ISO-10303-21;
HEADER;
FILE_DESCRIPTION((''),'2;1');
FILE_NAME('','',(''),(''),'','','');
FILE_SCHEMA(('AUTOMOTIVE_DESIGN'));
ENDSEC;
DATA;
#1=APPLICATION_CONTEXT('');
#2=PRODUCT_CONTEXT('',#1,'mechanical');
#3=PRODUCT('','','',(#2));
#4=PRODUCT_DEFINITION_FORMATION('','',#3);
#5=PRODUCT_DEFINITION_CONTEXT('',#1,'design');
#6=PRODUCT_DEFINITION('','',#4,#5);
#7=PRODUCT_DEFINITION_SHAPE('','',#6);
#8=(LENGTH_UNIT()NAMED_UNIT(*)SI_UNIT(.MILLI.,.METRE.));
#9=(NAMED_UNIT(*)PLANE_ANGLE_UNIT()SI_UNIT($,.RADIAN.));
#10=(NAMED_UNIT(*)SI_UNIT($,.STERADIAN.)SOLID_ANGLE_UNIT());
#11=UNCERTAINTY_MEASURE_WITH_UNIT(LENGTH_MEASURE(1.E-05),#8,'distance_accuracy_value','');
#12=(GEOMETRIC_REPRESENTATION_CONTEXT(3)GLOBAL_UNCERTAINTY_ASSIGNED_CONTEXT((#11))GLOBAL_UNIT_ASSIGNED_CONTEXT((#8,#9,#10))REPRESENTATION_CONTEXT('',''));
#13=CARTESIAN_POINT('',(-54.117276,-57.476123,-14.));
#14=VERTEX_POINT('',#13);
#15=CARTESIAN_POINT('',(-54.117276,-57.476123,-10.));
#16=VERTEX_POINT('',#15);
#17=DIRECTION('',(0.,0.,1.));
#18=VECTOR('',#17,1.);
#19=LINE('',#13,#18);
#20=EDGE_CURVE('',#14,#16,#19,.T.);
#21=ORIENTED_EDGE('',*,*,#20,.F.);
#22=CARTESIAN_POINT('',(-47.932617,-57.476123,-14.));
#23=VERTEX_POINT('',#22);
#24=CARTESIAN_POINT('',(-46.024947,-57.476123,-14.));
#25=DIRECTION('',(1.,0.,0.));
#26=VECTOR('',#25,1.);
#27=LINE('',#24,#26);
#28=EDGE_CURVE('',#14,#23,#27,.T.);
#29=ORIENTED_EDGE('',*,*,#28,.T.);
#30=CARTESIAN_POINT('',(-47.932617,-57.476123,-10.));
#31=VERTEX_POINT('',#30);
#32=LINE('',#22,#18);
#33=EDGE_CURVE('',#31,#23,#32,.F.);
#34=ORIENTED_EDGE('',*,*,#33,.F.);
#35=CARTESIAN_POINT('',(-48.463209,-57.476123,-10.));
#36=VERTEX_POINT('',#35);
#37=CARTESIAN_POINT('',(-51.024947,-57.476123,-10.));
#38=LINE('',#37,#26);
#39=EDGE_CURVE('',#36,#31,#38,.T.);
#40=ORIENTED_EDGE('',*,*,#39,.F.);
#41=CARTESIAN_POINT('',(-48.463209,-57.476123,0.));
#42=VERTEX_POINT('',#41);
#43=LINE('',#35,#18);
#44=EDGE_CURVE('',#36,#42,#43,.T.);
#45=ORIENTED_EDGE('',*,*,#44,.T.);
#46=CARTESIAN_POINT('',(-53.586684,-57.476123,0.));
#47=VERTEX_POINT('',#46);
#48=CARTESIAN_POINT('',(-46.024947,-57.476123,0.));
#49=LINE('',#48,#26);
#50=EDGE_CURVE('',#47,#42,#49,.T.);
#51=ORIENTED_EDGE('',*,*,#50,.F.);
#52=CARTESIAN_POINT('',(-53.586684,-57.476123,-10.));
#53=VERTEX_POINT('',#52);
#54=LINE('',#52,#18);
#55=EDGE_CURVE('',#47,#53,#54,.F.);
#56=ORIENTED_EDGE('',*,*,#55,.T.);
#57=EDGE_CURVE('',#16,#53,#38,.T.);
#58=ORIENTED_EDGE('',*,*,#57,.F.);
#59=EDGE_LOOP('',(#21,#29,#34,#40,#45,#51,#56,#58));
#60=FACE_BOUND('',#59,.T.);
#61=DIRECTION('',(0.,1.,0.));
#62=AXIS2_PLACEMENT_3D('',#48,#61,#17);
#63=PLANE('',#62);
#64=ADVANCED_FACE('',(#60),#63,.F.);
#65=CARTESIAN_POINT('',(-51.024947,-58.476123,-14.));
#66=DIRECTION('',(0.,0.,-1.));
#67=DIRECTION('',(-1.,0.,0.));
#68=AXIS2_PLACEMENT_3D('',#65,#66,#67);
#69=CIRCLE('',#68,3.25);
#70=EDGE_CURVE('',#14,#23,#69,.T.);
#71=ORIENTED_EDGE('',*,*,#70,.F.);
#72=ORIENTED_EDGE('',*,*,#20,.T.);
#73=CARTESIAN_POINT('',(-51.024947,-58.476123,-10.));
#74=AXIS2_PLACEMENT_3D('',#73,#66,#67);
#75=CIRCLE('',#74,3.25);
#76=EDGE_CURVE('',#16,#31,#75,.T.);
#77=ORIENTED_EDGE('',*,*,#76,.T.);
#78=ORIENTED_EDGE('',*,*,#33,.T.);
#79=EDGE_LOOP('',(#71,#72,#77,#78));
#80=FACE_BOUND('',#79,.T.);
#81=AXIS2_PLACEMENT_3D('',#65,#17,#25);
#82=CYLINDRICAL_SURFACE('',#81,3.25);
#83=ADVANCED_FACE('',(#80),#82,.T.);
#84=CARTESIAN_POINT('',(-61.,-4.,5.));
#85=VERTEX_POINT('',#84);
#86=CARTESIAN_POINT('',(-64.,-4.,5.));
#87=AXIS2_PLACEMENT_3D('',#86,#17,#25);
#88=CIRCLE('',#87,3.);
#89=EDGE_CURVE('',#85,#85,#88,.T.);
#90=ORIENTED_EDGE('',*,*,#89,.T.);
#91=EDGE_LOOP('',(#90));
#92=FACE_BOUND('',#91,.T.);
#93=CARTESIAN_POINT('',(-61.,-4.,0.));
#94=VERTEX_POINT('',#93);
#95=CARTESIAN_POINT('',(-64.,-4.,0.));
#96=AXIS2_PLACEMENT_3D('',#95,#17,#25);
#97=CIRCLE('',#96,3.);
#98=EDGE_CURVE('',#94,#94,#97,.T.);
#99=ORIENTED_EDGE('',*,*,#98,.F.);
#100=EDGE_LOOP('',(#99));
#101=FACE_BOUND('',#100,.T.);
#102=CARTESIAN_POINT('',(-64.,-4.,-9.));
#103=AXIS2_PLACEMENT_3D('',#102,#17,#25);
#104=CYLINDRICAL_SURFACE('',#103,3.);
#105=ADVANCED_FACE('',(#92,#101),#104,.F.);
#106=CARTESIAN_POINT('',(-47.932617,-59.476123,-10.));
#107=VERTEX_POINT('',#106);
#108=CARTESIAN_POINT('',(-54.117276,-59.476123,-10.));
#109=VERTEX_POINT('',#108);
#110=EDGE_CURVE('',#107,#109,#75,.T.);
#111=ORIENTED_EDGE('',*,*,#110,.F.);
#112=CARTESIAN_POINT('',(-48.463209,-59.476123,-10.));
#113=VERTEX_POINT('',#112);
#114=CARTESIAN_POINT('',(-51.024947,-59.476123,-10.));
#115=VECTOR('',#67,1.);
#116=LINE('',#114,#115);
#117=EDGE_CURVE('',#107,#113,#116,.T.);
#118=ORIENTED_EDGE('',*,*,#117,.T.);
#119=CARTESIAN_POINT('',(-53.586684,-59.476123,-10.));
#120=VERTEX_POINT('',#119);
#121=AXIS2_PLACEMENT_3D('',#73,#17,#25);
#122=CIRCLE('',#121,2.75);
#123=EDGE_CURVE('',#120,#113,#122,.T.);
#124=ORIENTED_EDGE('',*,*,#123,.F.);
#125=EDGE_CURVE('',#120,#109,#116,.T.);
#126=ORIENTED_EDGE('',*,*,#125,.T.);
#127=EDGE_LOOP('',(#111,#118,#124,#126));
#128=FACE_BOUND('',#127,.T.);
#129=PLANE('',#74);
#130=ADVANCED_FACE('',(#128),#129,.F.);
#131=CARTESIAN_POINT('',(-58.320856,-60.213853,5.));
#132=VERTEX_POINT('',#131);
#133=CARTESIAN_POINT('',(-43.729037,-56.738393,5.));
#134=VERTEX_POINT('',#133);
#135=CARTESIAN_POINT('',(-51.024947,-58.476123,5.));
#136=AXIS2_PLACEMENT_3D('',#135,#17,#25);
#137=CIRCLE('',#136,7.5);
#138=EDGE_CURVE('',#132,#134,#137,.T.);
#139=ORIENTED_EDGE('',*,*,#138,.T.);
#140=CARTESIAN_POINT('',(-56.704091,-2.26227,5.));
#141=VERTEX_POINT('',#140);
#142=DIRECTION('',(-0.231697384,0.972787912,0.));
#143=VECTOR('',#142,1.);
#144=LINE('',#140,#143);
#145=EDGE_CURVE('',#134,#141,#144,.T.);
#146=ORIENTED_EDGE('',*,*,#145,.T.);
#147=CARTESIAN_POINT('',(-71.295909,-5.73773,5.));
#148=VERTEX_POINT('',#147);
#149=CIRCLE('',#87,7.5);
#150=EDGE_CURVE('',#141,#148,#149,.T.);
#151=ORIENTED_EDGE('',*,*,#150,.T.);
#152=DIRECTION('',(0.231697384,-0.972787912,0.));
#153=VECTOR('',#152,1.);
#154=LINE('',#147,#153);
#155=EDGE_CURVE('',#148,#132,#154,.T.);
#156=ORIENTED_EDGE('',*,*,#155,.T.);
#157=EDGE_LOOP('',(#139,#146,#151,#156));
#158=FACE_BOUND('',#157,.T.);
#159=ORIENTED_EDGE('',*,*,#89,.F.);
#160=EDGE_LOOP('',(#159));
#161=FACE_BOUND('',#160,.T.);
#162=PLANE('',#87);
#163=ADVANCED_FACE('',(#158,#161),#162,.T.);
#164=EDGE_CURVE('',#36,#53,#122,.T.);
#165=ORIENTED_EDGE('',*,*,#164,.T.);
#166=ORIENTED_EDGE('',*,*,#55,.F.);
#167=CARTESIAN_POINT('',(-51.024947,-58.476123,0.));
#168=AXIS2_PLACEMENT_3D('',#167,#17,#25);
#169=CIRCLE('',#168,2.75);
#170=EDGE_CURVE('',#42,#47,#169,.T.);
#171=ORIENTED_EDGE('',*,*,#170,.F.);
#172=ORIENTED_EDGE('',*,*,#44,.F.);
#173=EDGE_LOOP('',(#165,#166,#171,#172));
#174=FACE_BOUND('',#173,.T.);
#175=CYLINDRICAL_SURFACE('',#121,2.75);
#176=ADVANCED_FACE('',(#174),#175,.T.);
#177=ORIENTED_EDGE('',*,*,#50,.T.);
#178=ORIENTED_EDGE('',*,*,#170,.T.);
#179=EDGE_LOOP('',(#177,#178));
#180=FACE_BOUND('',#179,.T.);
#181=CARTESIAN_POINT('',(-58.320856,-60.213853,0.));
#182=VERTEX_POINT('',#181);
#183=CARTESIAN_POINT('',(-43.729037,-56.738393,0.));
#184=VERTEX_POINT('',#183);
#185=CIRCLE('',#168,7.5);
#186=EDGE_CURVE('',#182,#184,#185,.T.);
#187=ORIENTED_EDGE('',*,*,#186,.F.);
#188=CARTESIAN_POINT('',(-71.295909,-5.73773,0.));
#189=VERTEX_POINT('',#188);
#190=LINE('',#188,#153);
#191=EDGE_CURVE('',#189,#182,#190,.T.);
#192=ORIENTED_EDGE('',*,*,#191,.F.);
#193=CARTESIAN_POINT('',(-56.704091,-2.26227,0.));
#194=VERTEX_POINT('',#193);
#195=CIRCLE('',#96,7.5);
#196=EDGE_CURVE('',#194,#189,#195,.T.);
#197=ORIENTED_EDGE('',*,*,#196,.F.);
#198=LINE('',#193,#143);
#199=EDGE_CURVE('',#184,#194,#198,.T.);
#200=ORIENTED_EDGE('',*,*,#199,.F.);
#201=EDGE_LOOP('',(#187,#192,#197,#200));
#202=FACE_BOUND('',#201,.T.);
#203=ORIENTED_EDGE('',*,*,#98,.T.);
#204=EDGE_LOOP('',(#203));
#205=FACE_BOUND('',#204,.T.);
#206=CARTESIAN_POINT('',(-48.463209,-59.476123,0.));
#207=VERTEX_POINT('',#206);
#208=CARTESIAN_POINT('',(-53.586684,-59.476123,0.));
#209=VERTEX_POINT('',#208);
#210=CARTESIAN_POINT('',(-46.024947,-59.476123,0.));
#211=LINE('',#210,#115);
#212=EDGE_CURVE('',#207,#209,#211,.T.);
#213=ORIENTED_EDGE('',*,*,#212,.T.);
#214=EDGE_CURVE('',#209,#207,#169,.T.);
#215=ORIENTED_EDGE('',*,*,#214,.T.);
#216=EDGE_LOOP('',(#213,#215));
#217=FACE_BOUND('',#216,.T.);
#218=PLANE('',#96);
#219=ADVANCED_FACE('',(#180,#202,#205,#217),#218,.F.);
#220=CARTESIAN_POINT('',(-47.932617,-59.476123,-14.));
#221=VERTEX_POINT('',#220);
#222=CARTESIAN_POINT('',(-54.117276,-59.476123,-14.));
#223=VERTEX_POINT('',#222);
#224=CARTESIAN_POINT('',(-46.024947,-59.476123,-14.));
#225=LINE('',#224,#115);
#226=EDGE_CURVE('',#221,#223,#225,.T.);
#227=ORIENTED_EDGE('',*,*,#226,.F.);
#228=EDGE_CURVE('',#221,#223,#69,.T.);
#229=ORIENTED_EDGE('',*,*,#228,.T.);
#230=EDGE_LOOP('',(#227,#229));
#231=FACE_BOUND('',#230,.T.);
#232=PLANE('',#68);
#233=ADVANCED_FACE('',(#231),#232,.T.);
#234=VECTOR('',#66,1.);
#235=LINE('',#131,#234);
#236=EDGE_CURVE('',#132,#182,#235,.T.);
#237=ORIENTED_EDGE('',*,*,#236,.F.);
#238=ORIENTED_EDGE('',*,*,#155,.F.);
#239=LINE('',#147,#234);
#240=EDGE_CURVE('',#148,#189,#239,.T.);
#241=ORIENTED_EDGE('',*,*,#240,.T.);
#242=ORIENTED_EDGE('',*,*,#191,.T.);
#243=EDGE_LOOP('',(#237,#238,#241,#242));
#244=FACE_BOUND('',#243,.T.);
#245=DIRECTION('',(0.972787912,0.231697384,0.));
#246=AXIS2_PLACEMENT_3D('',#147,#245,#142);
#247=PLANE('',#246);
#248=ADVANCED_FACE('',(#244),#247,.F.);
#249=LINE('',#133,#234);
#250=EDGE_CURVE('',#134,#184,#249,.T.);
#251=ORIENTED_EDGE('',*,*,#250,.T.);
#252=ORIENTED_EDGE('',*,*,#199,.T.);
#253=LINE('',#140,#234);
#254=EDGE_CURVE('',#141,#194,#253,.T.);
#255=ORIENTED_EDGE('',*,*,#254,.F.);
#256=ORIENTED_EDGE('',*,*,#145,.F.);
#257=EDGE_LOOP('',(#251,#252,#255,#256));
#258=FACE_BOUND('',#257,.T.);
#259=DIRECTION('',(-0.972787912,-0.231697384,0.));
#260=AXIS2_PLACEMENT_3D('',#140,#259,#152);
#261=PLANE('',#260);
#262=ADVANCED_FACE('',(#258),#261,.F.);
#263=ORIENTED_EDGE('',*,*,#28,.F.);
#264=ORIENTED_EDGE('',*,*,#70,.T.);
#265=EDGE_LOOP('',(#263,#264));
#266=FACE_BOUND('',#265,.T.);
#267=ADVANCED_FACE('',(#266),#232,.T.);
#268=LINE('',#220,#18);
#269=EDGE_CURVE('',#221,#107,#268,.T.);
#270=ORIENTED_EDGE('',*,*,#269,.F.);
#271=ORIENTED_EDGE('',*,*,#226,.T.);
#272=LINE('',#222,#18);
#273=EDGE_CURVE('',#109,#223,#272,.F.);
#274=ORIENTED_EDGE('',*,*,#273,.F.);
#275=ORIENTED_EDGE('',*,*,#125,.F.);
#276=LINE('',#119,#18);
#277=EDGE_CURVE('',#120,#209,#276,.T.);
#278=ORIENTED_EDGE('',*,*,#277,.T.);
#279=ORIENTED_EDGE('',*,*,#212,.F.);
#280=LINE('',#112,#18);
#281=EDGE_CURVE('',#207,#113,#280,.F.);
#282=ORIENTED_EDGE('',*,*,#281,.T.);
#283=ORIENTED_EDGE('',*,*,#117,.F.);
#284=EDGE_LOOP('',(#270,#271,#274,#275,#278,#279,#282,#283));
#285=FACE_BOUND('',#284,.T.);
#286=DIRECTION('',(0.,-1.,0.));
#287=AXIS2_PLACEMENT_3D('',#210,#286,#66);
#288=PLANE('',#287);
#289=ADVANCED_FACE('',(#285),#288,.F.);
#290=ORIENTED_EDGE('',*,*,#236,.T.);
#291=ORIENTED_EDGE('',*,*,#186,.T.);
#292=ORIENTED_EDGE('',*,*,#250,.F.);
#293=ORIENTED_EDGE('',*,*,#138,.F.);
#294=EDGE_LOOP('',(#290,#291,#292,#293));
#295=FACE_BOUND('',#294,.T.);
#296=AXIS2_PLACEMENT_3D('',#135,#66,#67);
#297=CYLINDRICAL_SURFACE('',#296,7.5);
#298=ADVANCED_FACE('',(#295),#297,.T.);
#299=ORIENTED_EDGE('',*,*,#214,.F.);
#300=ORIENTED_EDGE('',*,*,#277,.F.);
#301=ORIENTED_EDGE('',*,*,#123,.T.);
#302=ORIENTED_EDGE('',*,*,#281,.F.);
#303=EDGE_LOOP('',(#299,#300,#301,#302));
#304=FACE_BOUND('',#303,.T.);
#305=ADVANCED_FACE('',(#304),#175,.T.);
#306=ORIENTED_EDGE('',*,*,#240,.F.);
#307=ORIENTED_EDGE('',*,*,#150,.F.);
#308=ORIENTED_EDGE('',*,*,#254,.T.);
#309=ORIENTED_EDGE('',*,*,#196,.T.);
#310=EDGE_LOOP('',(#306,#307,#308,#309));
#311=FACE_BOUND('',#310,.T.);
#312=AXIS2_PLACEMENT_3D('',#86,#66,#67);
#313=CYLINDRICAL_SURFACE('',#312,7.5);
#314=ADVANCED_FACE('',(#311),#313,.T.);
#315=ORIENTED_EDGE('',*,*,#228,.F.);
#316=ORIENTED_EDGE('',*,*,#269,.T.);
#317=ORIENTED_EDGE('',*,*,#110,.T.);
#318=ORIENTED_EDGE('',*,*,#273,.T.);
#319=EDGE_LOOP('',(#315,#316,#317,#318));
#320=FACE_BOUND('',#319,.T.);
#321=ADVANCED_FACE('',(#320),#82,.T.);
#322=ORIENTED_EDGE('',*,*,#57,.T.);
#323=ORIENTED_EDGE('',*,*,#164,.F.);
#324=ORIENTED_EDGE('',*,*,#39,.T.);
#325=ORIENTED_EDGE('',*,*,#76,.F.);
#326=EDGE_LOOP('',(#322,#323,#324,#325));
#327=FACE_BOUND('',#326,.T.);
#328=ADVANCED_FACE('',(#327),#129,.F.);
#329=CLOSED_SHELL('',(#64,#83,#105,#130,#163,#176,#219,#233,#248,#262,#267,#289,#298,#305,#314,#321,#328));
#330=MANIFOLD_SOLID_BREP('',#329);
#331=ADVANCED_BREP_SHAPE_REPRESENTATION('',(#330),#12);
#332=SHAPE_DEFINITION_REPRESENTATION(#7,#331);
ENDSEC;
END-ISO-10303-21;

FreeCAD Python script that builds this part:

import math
import FreeCAD as App
import Part
import Sketcher
from FreeCAD import Vector

doc = App.newDocument("Part")
body = doc.addObject("PartDesign::Body", "Body")

sketch1 = doc.addObject("Sketcher::SketchObject", "Sketch")
body.addObject(sketch1)
sketch1.AttachmentSupport = (doc.XY_Plane, [""])
sketch1.MapMode = "FlatFace"
sketch1.addGeometry([
    Part.LineSegment(Vector(-44, -57, 0), Vector(-57, -2, 0)),
    Part.ArcOfCircle(Part.Circle(Vector(-64, -4, 0), Vector(0, 0, 1), 8), math.radians(13), math.radians(193)),
    Part.LineSegment(Vector(-71, -6, 0), Vector(-58, -60, 0)),
    Part.ArcOfCircle(Part.Circle(Vector(-51, -58, 0), Vector(0, 0, 1), 8), math.radians(-167), math.radians(13)),
], False)
sketch1.addConstraint([
    Sketcher.Constraint("Tangent", 0, 2, 1, 1),
    Sketcher.Constraint("Tangent", 1, 2, 2, 1),
    Sketcher.Constraint("Tangent", 2, 2, 3, 1),
    Sketcher.Constraint("Tangent", 3, 2, 0, 1),
    Sketcher.Constraint("Equal", 1, 3),
    Sketcher.Constraint("Radius", 1, 7.5),
    Sketcher.Constraint("Distance", 0, 56.0),
    Sketcher.Constraint("DistanceX", 1, 3, -1, 1, 64.0),
    Sketcher.Constraint("DistanceY", 1, 3, -1, 1, 4.0),
    Sketcher.Constraint("DistanceX", 0, 2, -1, 1, 56.704091),
])
pad1 = doc.addObject("PartDesign::Pad", "Pad")
body.addObject(pad1)
pad1.Profile = sketch1
pad1.Length = 5

sketch2 = doc.addObject("Sketcher::SketchObject", "Sketch001")
body.addObject(sketch2)
sketch2.AttachmentSupport = (doc.XY_Plane, [""])
sketch2.MapMode = "FlatFace"
sketch2.AttachmentOffset = App.Placement(Vector(0, 0, 5), App.Rotation())
sketch2.addGeometry(Part.Circle(Vector(-51, -58.5, 0), Vector(0, 0, 1), 2.8), False)
sketch2.addConstraint([
    Sketcher.Constraint("Diameter", 0, 5.5),
    Sketcher.Constraint("DistanceX", 0, 3, -1, 1, 51.024947),
    Sketcher.Constraint("DistanceY", 0, 3, -1, 1, 58.476123),
])
pad2 = doc.addObject("PartDesign::Pad", "Pad001")
body.addObject(pad2)
pad2.Profile = sketch2
pad2.Length = 15
pad2.Reversed = True

sketch3 = doc.addObject("Sketcher::SketchObject", "Sketch002")
body.addObject(sketch3)
sketch3.AttachmentSupport = (doc.XY_Plane, [""])
sketch3.MapMode = "FlatFace"
sketch3.AttachmentOffset = App.Placement(Vector(0, 0, -10), App.Rotation())
sketch3.addGeometry(Part.Circle(Vector(-51, -58.5, 0), Vector(0, 0, 1), 3.2), False)
sketch3.addConstraint([
    Sketcher.Constraint("Diameter", 0, 6.5),
    Sketcher.Constraint("DistanceX", 0, 3, -1, 1, 51.024947),
    Sketcher.Constraint("DistanceY", 0, 3, -1, 1, 58.476123),
])
pad3 = doc.addObject("PartDesign::Pad", "Pad002")
body.addObject(pad3)
pad3.Profile = sketch3
pad3.Length = 4
pad3.Reversed = True

sketch4 = doc.addObject("Sketcher::SketchObject", "Sketch003")
body.addObject(sketch4)
sketch4.AttachmentSupport = (doc.XY_Plane, [""])
sketch4.MapMode = "FlatFace"
sketch4.AttachmentOffset = App.Placement(Vector(0, 0, -14), App.Rotation())
sketch4.addGeometry([
    Part.LineSegment(Vector(-46, -57.5, 0), Vector(-46, -59.5, 0)),
    Part.LineSegment(Vector(-46, -59.5, 0), Vector(-56, -59.5, 0)),
    Part.LineSegment(Vector(-56, -59.5, 0), Vector(-56, -57.5, 0)),
    Part.LineSegment(Vector(-56, -57.5, 0), Vector(-46, -57.5, 0)),
], False)
sketch4.addConstraint([
    Sketcher.Constraint("Coincident", 0, 2, 1, 1),
    Sketcher.Constraint("Coincident", 1, 2, 2, 1),
    Sketcher.Constraint("Coincident", 2, 2, 3, 1),
    Sketcher.Constraint("Coincident", 3, 2, 0, 1),
    Sketcher.Constraint("Vertical", 0),
    Sketcher.Constraint("Horizontal", 1),
    Sketcher.Constraint("Vertical", 2),
    Sketcher.Constraint("Horizontal", 3),
    Sketcher.Constraint("DistanceX", 1, 2, 1, 1, 10.0),
    Sketcher.Constraint("DistanceY", 0, 2, 0, 1, 2.0),
    Sketcher.Constraint("DistanceX", 0, 2, -1, 1, 46.024947),
    Sketcher.Constraint("DistanceY", 0, 2, -1, 1, 59.476123),
])
pocket1 = doc.addObject("PartDesign::Pocket", "Pocket")
body.addObject(pocket1)
pocket1.Profile = sketch4
pocket1.Length = 14
pocket1.Reversed = True

sketch5 = doc.addObject("Sketcher::SketchObject", "Sketch004")
body.addObject(sketch5)
sketch5.AttachmentSupport = (doc.XY_Plane, [""])
sketch5.MapMode = "FlatFace"
sketch5.AttachmentOffset = App.Placement(Vector(0, 0, 5), App.Rotation())
sketch5.addGeometry(Part.Circle(Vector(-64, -4, 0), Vector(0, 0, 1), 3), False)
sketch5.addConstraint([
    Sketcher.Constraint("Diameter", 0, 6.0),
    Sketcher.Constraint("DistanceX", 0, 3, -1, 1, 64.0),
    Sketcher.Constraint("DistanceY", 0, 3, -1, 1, 4.0),
])
pocket2 = doc.addObject("PartDesign::Pocket", "Pocket001")
body.addObject(pocket2)
pocket2.Profile = sketch5
pocket2.Length = 14

doc.recompute()
